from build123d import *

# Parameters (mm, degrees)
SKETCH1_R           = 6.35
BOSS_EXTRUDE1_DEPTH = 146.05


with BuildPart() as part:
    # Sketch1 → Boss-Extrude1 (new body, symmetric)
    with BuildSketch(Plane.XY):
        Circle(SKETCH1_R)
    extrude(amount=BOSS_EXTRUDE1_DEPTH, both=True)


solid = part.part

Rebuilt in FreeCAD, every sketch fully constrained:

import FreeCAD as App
import Part
import Sketcher
Q = App.Units.Quantity

doc = App.newDocument("Part")
body = doc.addObject("PartDesign::Body", "Body")

sketch1 = body.newObject("Sketcher::SketchObject", "Sketch")
sketch1.AttachmentSupport = (doc.getObject("XY_Plane"), [""])
sketch1.MapMode = "FlatFace"
sketch1.addGeometry(Part.Circle(App.Vector(0, 0, 0), App.Vector(0, 0, 1), 6), False)
sketch1.addConstraint(Sketcher.Constraint("Coincident", 0, 3, -1, 1))
sketch1.addConstraint(Sketcher.Constraint("Diameter", 0, Q("0.5 in")))
pad1 = body.newObject("PartDesign::Pad", "Pad")
pad1.Profile = sketch1
pad1.Length = Q("11.5 in")
pad1.Midplane = True

doc.recompute()
